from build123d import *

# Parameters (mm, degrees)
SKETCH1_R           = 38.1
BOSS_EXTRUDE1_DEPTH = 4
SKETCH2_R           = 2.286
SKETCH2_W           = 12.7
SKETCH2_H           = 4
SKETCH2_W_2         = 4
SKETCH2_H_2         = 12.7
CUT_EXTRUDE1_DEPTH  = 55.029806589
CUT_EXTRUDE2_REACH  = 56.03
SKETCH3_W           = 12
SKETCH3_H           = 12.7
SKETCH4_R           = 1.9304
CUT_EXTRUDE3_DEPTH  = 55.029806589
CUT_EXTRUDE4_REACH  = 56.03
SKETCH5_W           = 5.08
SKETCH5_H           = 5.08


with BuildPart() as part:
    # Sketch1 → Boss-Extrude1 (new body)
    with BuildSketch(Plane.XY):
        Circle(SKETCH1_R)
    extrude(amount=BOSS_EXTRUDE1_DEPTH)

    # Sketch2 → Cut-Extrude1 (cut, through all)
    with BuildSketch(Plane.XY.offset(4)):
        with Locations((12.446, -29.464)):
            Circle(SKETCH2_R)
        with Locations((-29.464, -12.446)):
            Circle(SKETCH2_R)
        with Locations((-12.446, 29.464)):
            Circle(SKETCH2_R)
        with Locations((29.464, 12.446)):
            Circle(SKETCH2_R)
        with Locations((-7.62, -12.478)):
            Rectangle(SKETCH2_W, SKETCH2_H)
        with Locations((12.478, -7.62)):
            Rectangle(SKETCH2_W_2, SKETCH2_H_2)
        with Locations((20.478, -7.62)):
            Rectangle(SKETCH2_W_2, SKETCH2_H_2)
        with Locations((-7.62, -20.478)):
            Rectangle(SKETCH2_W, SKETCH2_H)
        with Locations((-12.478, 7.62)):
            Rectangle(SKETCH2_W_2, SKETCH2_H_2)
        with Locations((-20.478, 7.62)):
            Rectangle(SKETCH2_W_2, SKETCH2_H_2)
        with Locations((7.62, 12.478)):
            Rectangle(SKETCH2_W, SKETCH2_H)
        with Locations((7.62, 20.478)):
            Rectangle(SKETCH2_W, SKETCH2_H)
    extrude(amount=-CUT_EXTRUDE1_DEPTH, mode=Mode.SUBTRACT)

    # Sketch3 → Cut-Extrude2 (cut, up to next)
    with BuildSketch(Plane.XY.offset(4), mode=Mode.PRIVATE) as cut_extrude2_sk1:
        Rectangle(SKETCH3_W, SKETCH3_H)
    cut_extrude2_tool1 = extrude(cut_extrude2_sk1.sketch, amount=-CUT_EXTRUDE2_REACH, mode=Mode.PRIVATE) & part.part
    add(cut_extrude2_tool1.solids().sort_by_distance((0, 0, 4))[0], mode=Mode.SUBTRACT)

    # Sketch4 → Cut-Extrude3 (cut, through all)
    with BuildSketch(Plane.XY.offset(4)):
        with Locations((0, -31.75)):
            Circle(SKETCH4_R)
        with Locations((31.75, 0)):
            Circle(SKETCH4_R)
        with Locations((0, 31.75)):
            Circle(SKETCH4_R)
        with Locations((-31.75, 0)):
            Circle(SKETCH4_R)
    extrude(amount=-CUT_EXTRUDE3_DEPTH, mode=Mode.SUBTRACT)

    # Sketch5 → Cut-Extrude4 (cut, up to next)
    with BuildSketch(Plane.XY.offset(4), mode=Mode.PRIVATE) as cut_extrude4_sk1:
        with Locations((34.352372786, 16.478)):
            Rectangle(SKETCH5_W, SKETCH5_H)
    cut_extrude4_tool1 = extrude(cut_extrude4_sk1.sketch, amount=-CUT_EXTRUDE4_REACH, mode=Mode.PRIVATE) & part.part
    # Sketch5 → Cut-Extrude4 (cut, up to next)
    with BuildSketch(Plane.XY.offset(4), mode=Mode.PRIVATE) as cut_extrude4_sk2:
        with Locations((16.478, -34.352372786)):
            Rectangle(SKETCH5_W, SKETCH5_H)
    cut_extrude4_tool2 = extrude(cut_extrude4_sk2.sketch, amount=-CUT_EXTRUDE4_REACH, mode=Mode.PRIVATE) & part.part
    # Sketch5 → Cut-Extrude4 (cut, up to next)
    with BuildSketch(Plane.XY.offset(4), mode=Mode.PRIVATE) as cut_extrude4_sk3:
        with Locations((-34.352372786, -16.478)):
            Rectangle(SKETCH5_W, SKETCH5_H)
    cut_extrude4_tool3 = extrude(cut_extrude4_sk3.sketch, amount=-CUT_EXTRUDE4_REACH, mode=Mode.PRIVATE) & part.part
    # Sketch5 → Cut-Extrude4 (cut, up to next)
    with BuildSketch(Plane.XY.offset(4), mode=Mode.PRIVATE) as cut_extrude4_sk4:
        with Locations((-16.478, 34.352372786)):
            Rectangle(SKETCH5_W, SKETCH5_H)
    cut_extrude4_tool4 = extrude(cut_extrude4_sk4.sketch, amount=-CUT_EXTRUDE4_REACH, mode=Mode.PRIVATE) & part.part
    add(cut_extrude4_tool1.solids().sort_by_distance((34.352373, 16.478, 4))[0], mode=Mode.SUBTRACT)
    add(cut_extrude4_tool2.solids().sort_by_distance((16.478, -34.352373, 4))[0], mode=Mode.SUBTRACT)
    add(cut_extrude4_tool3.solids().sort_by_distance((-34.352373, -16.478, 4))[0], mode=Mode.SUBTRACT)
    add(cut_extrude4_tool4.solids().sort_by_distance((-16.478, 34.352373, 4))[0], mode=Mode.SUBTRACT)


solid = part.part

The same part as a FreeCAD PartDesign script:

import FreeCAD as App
import Part
import Sketcher
Q = App.Units.Quantity

doc = App.newDocument("Part")
body = doc.addObject("PartDesign::Body", "Body")

sketch1 = doc.addObject("Sketcher::SketchObject", "Sketch")
body.addObject(sketch1)
sketch1.AttachmentSupport = (doc.XY_Plane, [""])
sketch1.MapMode = "FlatFace"
sketch1.addGeometry(Part.Circle(App.Vector(0, 0, 0), App.Vector(0, 0, 1), 38), False)
sketch1.addConstraint(Sketcher.Constraint("Coincident", 0, 3, -1, 1))
sketch1.addConstraint(Sketcher.Constraint("Diameter", 0, Q("3 in")))
pad1 = doc.addObject("PartDesign::Pad", "Pad")
body.addObject(pad1)
pad1.Profile = sketch1
pad1.Length = 4

sketch2 = doc.addObject("Sketcher::SketchObject", "Sketch001")
body.addObject(sketch2)
sketch2.AttachmentSupport = (doc.XY_Plane, [""])
sketch2.MapMode = "FlatFace"
sketch2.AttachmentOffset = App.Placement(App.Vector(0, 0, 4), App.Rotation())
sketch2.addGeometry(Part.Circle(App.Vector(12.4, -29.5, 0), App.Vector(0, 0, 1), 2.3), False)
sketch2.addGeometry(Part.Circle(App.Vector(-29.5, -12.4, 0), App.Vector(0, 0, 1), 2.3), False)
sketch2.addGeometry(Part.Circle(App.Vector(-12.4, 29.5, 0), App.Vector(0, 0, 1), 2.3), False)
sketch2.addGeometry(Part.Circle(App.Vector(29.5, 12.4, 0), App.Vector(0, 0, 1), 2.3), False)
sketch2.addGeometry(Part.LineSegment(App.Vector(-14, -10.5, 0), App.Vector(-14, -14.5, 0)), False)
sketch2.addGeometry(Part.LineSegment(App.Vector(-14, -14.5, 0), App.Vector(-1.3, -14.5, 0)), False)
sketch2.addGeometry(Part.LineSegment(App.Vector(-1.3, -14.5, 0), App.Vector(-1.3, -10.5, 0)), False)
sketch2.addGeometry(Part.LineSegment(App.Vector(-1.3, -10.5, 0), App.Vector(-14, -10.5, 0)), False)
sketch2.addGeometry(Part.LineSegment(App.Vector(10.5, -1.3, 0), App.Vector(10.5, -14, 0)), False)
sketch2.addGeometry(Part.LineSegment(App.Vector(10.5, -14, 0), App.Vector(14.5, -14, 0)), False)
sketch2.addGeometry(Part.LineSegment(App.Vector(14.5, -14, 0), App.Vector(14.5, -1.3, 0)), False)
sketch2.addGeometry(Part.LineSegment(App.Vector(14.5, -1.3, 0), App.Vector(10.5, -1.3, 0)), False)
sketch2.addGeometry(Part.LineSegment(App.Vector(18.5, -1.3, 0), App.Vector(18.5, -14, 0)), False)
sketch2.addGeometry(Part.LineSegment(App.Vector(18.5, -14, 0), App.Vector(22.5, -14, 0)), False)
sketch2.addGeometry(Part.LineSegment(App.Vector(22.5, -14, 0), App.Vector(22.5, -1.3, 0)), False)
sketch2.addGeometry(Part.LineSegment(App.Vector(22.5, -1.3, 0), App.Vector(18.5, -1.3, 0)), False)
sketch2.addGeometry(Part.LineSegment(App.Vector(-14, -18.5, 0), App.Vector(-14, -22.5, 0)), False)
sketch2.addGeometry(Part.LineSegment(App.Vector(-14, -22.5, 0), App.Vector(-1.3, -22.5, 0)), False)
sketch2.addGeometry(Part.LineSegment(App.Vector(-1.3, -22.5, 0), App.Vector(-1.3, -18.5, 0)), False)
sketch2.addGeometry(Part.LineSegment(App.Vector(-1.3, -18.5, 0), App.Vector(-14, -18.5, 0)), False)
sketch2.addGeometry(Part.LineSegment(App.Vector(-14.5, 14, 0), App.Vector(-14.5, 1.3, 0)), False)
sketch2.addGeometry(Part.LineSegment(App.Vector(-14.5, 1.3, 0), App.Vector(-10.5, 1.3, 0)), False)
sketch2.addGeometry(Part.LineSegment(App.Vector(-10.5, 1.3, 0), App.Vector(-10.5, 14, 0)), False)
sketch2.addGeometry(Part.LineSegment(App.Vector(-10.5, 14, 0), App.Vector(-14.5, 14, 0)), False)
sketch2.addGeometry(Part.LineSegment(App.Vector(-22.5, 14, 0), App.Vector(-22.5, 1.3, 0)), False)
sketch2.addGeometry(Part.LineSegment(App.Vector(-22.5, 1.3, 0), App.Vector(-18.5, 1.3, 0)), False)
sketch2.addGeometry(Part.LineSegment(App.Vector(-18.5, 1.3, 0), App.Vector(-18.5, 14, 0)), False)
sketch2.addGeometry(Part.LineSegment(App.Vector(-18.5, 14, 0), App.Vector(-22.5, 14, 0)), False)
sketch2.addGeometry(Part.LineSegment(App.Vector(1.3, 14.5, 0), App.Vector(1.3, 10.5, 0)), False)
sketch2.addGeometry(Part.LineSegment(App.Vector(1.3, 10.5, 0), App.Vector(14, 10.5, 0)), False)
sketch2.addGeometry(Part.LineSegment(App.Vector(14, 10.5, 0), App.Vector(14, 14.5, 0)), False)
sketch2.addGeometry(Part.LineSegment(App.Vector(14, 14.5, 0), App.Vector(1.3, 14.5, 0)), False)
sketch2.addGeometry(Part.LineSegment(App.Vector(1.3, 22.5, 0), App.Vector(1.3, 18.5, 0)), False)
sketch2.addGeometry(Part.LineSegment(App.Vector(1.3, 18.5, 0), App.Vector(14, 18.5, 0)), False)
sketch2.addGeometry(Part.LineSegment(App.Vector(14, 18.5, 0), App.Vector(14, 22.5, 0)), False)
sketch2.addGeometry(Part.LineSegment(App.Vector(14, 22.5, 0), App.Vector(1.3, 22.5, 0)), False)
sketch2.addConstraint(Sketcher.Constraint("Coincident", 4, 2, 5, 1))
sketch2.addConstraint(Sketcher.Constraint("Coincident", 5, 2, 6, 1))
sketch2.addConstraint(Sketcher.Constraint("Coincident", 6, 2, 7, 1))
sketch2.addConstraint(Sketcher.Constraint("Coincident", 7, 2, 4, 1))
sketch2.addConstraint(Sketcher.Constraint("Coincident", 8, 2, 9, 1))
sketch2.addConstraint(Sketcher.Constraint("Coincident", 9, 2, 10, 1))
sketch2.addConstraint(Sketcher.Constraint("Coincident", 10, 2, 11, 1))
sketch2.addConstraint(Sketcher.Constraint("Coincident", 11, 2, 8, 1))
sketch2.addConstraint(Sketcher.Constraint("Coincident", 12, 2, 13, 1))
sketch2.addConstraint(Sketcher.Constraint("Coincident", 13, 2, 14, 1))
sketch2.addConstraint(Sketcher.Constraint("Coincident", 14, 2, 15, 1))
sketch2.addConstraint(Sketcher.Constraint("Coincident", 15, 2, 12, 1))
sketch2.addConstraint(Sketcher.Constraint("Coincident", 16, 2, 17, 1))
sketch2.addConstraint(Sketcher.Constraint("Coincident", 17, 2, 18, 1))
sketch2.addConstraint(Sketcher.Constraint("Coincident", 18, 2, 19, 1))
sketch2.addConstraint(Sketcher.Constraint("Coincident", 19, 2, 16, 1))
sketch2.addConstraint(Sketcher.Constraint("Coincident", 20, 2, 21, 1))
sketch2.addConstraint(Sketcher.Constraint("Coincident", 21, 2, 22, 1))
sketch2.addConstraint(Sketcher.Constraint("Coincident", 22, 2, 23, 1))
sketch2.addConstraint(Sketcher.Constraint("Coincident", 23, 2, 20, 1))
sketch2.addConstraint(Sketcher.Constraint("Coincident", 24, 2, 25, 1))
sketch2.addConstraint(Sketcher.Constraint("Coincident", 25, 2, 26, 1))
sketch2.addConstraint(Sketcher.Constraint("Coincident", 26, 2, 27, 1))
sketch2.addConstraint(Sketcher.Constraint("Coincident", 27, 2, 24, 1))
sketch2.addConstraint(Sketcher.Constraint("Coincident", 28, 2, 29, 1))
sketch2.addConstraint(Sketcher.Constraint("Coincident", 29, 2, 30, 1))
sketch2.addConstraint(Sketcher.Constraint("Coincident", 30, 2, 31, 1))
sketch2.addConstraint(Sketcher.Constraint("Coincident", 31, 2, 28, 1))
sketch2.addConstraint(Sketcher.Constraint("Coincident", 32, 2, 33, 1))
sketch2.addConstraint(Sketcher.Constraint("Coincident", 33, 2, 34, 1))
sketch2.addConstraint(Sketcher.Constraint("Coincident", 34, 2, 35, 1))
sketch2.addConstraint(Sketcher.Constraint("Coincident", 35, 2, 32, 1))
sketch2.addConstraint(Sketcher.Constraint("Vertical", 4))
sketch2.addConstraint(Sketcher.Constraint("Horizontal", 5))
sketch2.addConstraint(Sketcher.Constraint("Vertical", 6))
sketch2.addConstraint(Sketcher.Constraint("Horizontal", 7))
sketch2.addConstraint(Sketcher.Constraint("Vertical", 8))
sketch2.addConstraint(Sketcher.Constraint("Horizontal", 9))
sketch2.addConstraint(Sketcher.Constraint("Vertical", 10))
sketch2.addConstraint(Sketcher.Constraint("Horizontal", 11))
sketch2.addConstraint(Sketcher.Constraint("Vertical", 12))
sketch2.addConstraint(Sketcher.Constraint("Horizontal", 13))
sketch2.addConstraint(Sketcher.Constraint("Vertical", 14))
sketch2.addConstraint(Sketcher.Constraint("Horizontal", 15))
sketch2.addConstraint(Sketcher.Constraint("Vertical", 16))
sketch2.addConstraint(Sketcher.Constraint("Horizontal", 17))
sketch2.addConstraint(Sketcher.Constraint("Vertical", 18))
sketch2.addConstraint(Sketcher.Constraint("Horizontal", 19))
sketch2.addConstraint(Sketcher.Constraint("Vertical", 20))
sketch2.addConstraint(Sketcher.Constraint("Horizontal", 21))
sketch2.addConstraint(Sketcher.Constraint("Vertical", 22))
sketch2.addConstraint(Sketcher.Constraint("Horizontal", 23))
sketch2.addConstraint(Sketcher.Constraint("Vertical", 24))
sketch2.addConstraint(Sketcher.Constraint("Horizontal", 25))
sketch2.addConstraint(Sketcher.Constraint("Vertical", 26))
sketch2.addConstraint(Sketcher.Constraint("Horizontal", 27))
sketch2.addConstraint(Sketcher.Constraint("Vertical", 28))
sketch2.addConstraint(Sketcher.Constraint("Horizontal", 29))
sketch2.addConstraint(Sketcher.Constraint("Vertical", 30))
sketch2.addConstraint(Sketcher.Constraint("Horizontal", 31))
sketch2.addConstraint(Sketcher.Constraint("Vertical", 32))
sketch2.addConstraint(Sketcher.Constraint("Horizontal", 33))
sketch2.addConstraint(Sketcher.Constraint("Vertical", 34))
sketch2.addConstraint(Sketcher.Constraint("Horizontal", 35))
sketch2.addConstraint(Sketcher.Constraint("Equal", 0, 1))
sketch2.addConstraint(Sketcher.Constraint("Equal", 1, 2))
sketch2.addConstraint(Sketcher.Constraint("Equal", 2, 3))
sketch2.addConstraint(Sketcher.Constraint("Symmetric", 0, 3, 2, 3, -1, 1))
sketch2.addConstraint(Sketcher.Constraint("Symmetric", 1, 3, 3, 3, -1, 1))
sketch2.addConstraint(Sketcher.Constraint("Symmetric", 10, 2, 20, 2, -1, 1))
sketch2.addConstraint(Sketcher.Constraint("Symmetric", 8, 2, 22, 2, -1, 1))
sketch2.addConstraint(Sketcher.Constraint("Symmetric", 14, 2, 24, 2, -1, 1))
sketch2.addConstraint(Sketcher.Constraint("Symmetric", 12, 2, 26, 2, -1, 1))
sketch2.addConstraint(Sketcher.Constraint("Symmetric", 6, 2, 28, 2, -1, 1))
sketch2.addConstraint(Sketcher.Constraint("Symmetric", 4, 2, 30, 2, -1, 1))
sketch2.addConstraint(Sketcher.Constraint("Symmetric", 18, 2, 32, 2, -1, 1))
sketch2.addConstraint(Sketcher.Constraint("Symmetric", 16, 2, 34, 2, -1, 1))
sketch2.addConstraint(Sketcher.Constraint("Horizontal", 9, 2, 12, 2))
sketch2.addConstraint(Sketcher.Constraint("Horizontal", 11, 2, 14, 2))
sketch2.addConstraint(Sketcher.Constraint("Vertical", 7, 2, 16, 2))
sketch2.addConstraint(Sketcher.Constraint("Vertical", 6, 2, 17, 2))
sketch2.addConstraint(Sketcher.Constraint("Equal", 11, 13))
sketch2.addConstraint(Sketcher.Constraint("Equal", 27, 4))
sketch2.addConstraint(Sketcher.Constraint("Equal", 35, 8))
sketch2.addConstraint(Sketcher.Constraint("Equal", 6, 16))
sketch2.addConstraint(Sketcher.Constraint("Diameter", 0, Q("0.18 in")))
sketch2.addConstraint(Sketcher.Constraint("DistanceX", 5, 1, 5, 2, Q("0.5 in")))
sketch2.addConstraint(Sketcher.Constraint("DistanceY", 11, 2, 22, 2, Q("0.6 in")))
sketch2.addConstraint(Sketcher.Constraint("DistanceX", -1, 1, 0, 3, Q("0.49 in")))
sketch2.addConstraint(Sketcher.Constraint("DistanceY", 0, 3, -1, 1, Q("1.16 in")))
sketch2.addConstraint(Sketcher.Constraint("DistanceX", 1, 3, -1, 1, Q("1.16 in")))
sketch2.addConstraint(Sketcher.Constraint("DistanceY", 1, 3, -1, 1, Q("0.49 in")))
sketch2.addConstraint(Sketcher.Constraint("DistanceX", 4, 2, -1, 1, Q("0.55 in")))
sketch2.addConstraint(Sketcher.Constraint("DistanceY", 4, 2, -1, 1, Q("0.57 in")))
sketch2.addConstraint(Sketcher.Constraint("DistanceX", -1, 1, 9, 2, Q("0.57 in")))
sketch2.addConstraint(Sketcher.Constraint("DistanceX", 9, 1, 9, 2, 4.0))
sketch2.addConstraint(Sketcher.Constraint("DistanceX", -1, 1, 12, 2, 18.478))
sketch2.addConstraint(Sketcher.Constraint("DistanceY", 16, 2, -1, 1, 22.478))
pocket1 = doc.addObject("PartDesign::Pocket", "Pocket")
body.addObject(pocket1)
pocket1.Profile = sketch2
pocket1.Type = "ThroughAll"

sketch3 = doc.addObject("Sketcher::SketchObject", "Sketch002")
body.addObject(sketch3)
sketch3.AttachmentSupport = (doc.XY_Plane, [""])
sketch3.MapMode = "FlatFace"
sketch3.AttachmentOffset = App.Placement(App.Vector(0, 0, 4), App.Rotation())
sketch3.addGeometry(Part.LineSegment(App.Vector(-6, 6, 0), App.Vector(-6, -6, 0)), False)
sketch3.addGeometry(Part.LineSegment(App.Vector(-6, -6, 0), App.Vector(6, -6, 0)), False)
sketch3.addGeometry(Part.LineSegment(App.Vector(6, -6, 0), App.Vector(6, 6, 0)), False)
sketch3.addGeometry(Part.LineSegment(App.Vector(6, 6, 0), App.Vector(-6, 6, 0)), False)
sketch3.addConstraint(Sketcher.Constraint("Coincident", 0, 2, 1, 1))
sketch3.addConstraint(Sketcher.Constraint("Coincident", 1, 2, 2, 1))
sketch3.addConstraint(Sketcher.Constraint("Coincident", 2, 2, 3, 1))
sketch3.addConstraint(Sketcher.Constraint("Coincident", 3, 2, 0, 1))
sketch3.addConstraint(Sketcher.Constraint("Vertical", 0))
sketch3.addConstraint(Sketcher.Constraint("Horizontal", 1))
sketch3.addConstraint(Sketcher.Constraint("Vertical", 2))
sketch3.addConstraint(Sketcher.Constraint("Horizontal", 3))
sketch3.addConstraint(Sketcher.Constraint("Symmetric", 0, 2, 2, 2, -1, 1))
sketch3.addConstraint(Sketcher.Constraint("DistanceY", 0, 2, 0, 1, Q("0.5 in")))
sketch3.addConstraint(Sketcher.Constraint("DistanceX", 1, 1, 1, 2, 12.0))
pocket2 = doc.addObject("PartDesign::Pocket", "Pocket001")
body.addObject(pocket2)
pocket2.Profile = sketch3
pocket2.Type = "UpToFirst"

sketch4 = doc.addObject("Sketcher::SketchObject", "Sketch003")
body.addObject(sketch4)
sketch4.AttachmentSupport = (doc.XY_Plane, [""])
sketch4.MapMode = "FlatFace"
sketch4.AttachmentOffset = App.Placement(App.Vector(0, 0, 4), App.Rotation())
sketch4.addGeometry(Part.Circle(App.Vector(0, -31.8, 0), App.Vector(0, 0, 1), 1.9), False)
sketch4.addGeometry(Part.Circle(App.Vector(31.8, 0, 0), App.Vector(0, 0, 1), 1.9), False)
sketch4.addGeometry(Part.Circle(App.Vector(0, 31.8, 0), App.Vector(0, 0, 1), 1.9), False)
sketch4.addGeometry(Part.Circle(App.Vector(-31.8, 0, 0), App.Vector(0, 0, 1), 1.9), False)
sketch4.addConstraint(Sketcher.Constraint("Equal", 0, 1))
sketch4.addConstraint(Sketcher.Constraint("Equal", 1, 2))
sketch4.addConstraint(Sketcher.Constraint("Equal", 2, 3))
sketch4.addConstraint(Sketcher.Constraint("Symmetric", 0, 3, 2, 3, -1, 1))
sketch4.addConstraint(Sketcher.Constraint("Symmetric", 1, 3, 3, 3, -1, 1))
sketch4.addConstraint(Sketcher.Constraint("PointOnObject", 0, 3, -2))
sketch4.addConstraint(Sketcher.Constraint("PointOnObject", 1, 3, -1))
sketch4.addConstraint(Sketcher.Constraint("Diameter", 0, Q("0.152 in")))
sketch4.addConstraint(Sketcher.Constraint("DistanceY", 0, 3, 2, 3, Q("2.5 in")))
sketch4.addConstraint(Sketcher.Constraint("DistanceX", 3, 3, 1, 3, Q("2.5 in")))
pocket3 = doc.addObject("PartDesign::Pocket", "Pocket002")
body.addObject(pocket3)
pocket3.Profile = sketch4
pocket3.Type = "ThroughAll"

sketch5 = doc.addObject("Sketcher::SketchObject", "Sketch004")
body.addObject(sketch5)
sketch5.AttachmentSupport = (doc.XY_Plane, [""])
sketch5.MapMode = "FlatFace"
sketch5.AttachmentOffset = App.Placement(App.Vector(0, 0, 4), App.Rotation())
sketch5.addGeometry(Part.LineSegment(App.Vector(32, 19, 0), App.Vector(32, 14, 0)), False)
sketch5.addGeometry(Part.LineSegment(App.Vector(32, 14, 0), App.Vector(37, 14, 0)), False)
sketch5.addGeometry(Part.LineSegment(App.Vector(37, 14, 0), App.Vector(37, 19, 0)), False)
sketch5.addGeometry(Part.LineSegment(App.Vector(37, 19, 0), App.Vector(32, 19, 0)), False)
sketch5.addConstraint(Sketcher.Constraint("Coincident", 0, 2, 1, 1))
sketch5.addConstraint(Sketcher.Constraint("Coincident", 1, 2, 2, 1))
sketch5.addConstraint(Sketcher.Constraint("Coincident", 2, 2, 3, 1))
sketch5.addConstraint(Sketcher.Constraint("Coincident", 3, 2, 0, 1))
sketch5.addConstraint(Sketcher.Constraint("Vertical", 0))
sketch5.addConstraint(Sketcher.Constraint("Horizontal", 1))
sketch5.addConstraint(Sketcher.Constraint("Vertical", 2))
sketch5.addConstraint(Sketcher.Constraint("Horizontal", 3))
sketch5.addConstraint(Sketcher.Constraint("Equal", 3, 0))
sketch5.addConstraint(Sketcher.Constraint("DistanceX", 1, 1, 1, 2, Q("0.2 in")))
sketch5.addConstraint(Sketcher.Constraint("DistanceY", -1, 1, 0, 2, 13.938))
sketch5.addConstraint(Sketcher.Constraint("DistanceX", -1, 1, 0, 2, 31.812373))
pocket4 = doc.addObject("PartDesign::Pocket", "Pocket003")
body.addObject(pocket4)
pocket4.Profile = sketch5
pocket4.Length = 4

sketch6 = doc.addObject("Sketcher::SketchObject", "Sketch005")
body.addObject(sketch6)
sketch6.AttachmentSupport = (doc.XY_Plane, [""])
sketch6.MapMode = "FlatFace"
sketch6.AttachmentOffset = App.Placement(App.Vector(0, 0, 4), App.Rotation())
sketch6.addGeometry(Part.LineSegment(App.Vector(14, -32, 0), App.Vector(14, -37, 0)), False)
sketch6.addGeometry(Part.LineSegment(App.Vector(14, -37, 0), App.Vector(19, -37, 0)), False)
sketch6.addGeometry(Part.LineSegment(App.Vector(19, -37, 0), App.Vector(19, -32, 0)), False)
sketch6.addGeometry(Part.LineSegment(App.Vector(19, -32, 0), App.Vector(14, -32, 0)), False)
sketch6.addConstraint(Sketcher.Constraint("Coincident", 0, 2, 1, 1))
sketch6.addConstraint(Sketcher.Constraint("Coincident", 1, 2, 2, 1))
sketch6.addConstraint(Sketcher.Constraint("Coincident", 2, 2, 3, 1))
sketch6.addConstraint(Sketcher.Constraint("Coincident", 3, 2, 0, 1))
sketch6.addConstraint(Sketcher.Constraint("Vertical", 0))
sketch6.addConstraint(Sketcher.Constraint("Horizontal", 1))
sketch6.addConstraint(Sketcher.Constraint("Vertical", 2))
sketch6.addConstraint(Sketcher.Constraint("Horizontal", 3))
sketch6.addConstraint(Sketcher.Constraint("Equal", 3, 0))
sketch6.addConstraint(Sketcher.Constraint("DistanceX", 1, 1, 1, 2, Q("0.2 in")))
sketch6.addConstraint(Sketcher.Constraint("DistanceX", -1, 1, 0, 2, 13.938))
sketch6.addConstraint(Sketcher.Constraint("DistanceY", 0, 2, -1, 1, 36.892373))
pocket5 = doc.addObject("PartDesign::Pocket", "Pocket004")
body.addObject(pocket5)
pocket5.Profile = sketch6
pocket5.Length = 4

sketch7 = doc.addObject("Sketcher::SketchObject", "Sketch006")
body.addObject(sketch7)
sketch7.AttachmentSupport = (doc.XY_Plane, [""])
sketch7.MapMode = "FlatFace"
sketch7.AttachmentOffset = App.Placement(App.Vector(0, 0, 4), App.Rotation())
sketch7.addGeometry(Part.LineSegment(App.Vector(-37, -14, 0), App.Vector(-37, -19, 0)), False)
sketch7.addGeometry(Part.LineSegment(App.Vector(-37, -19, 0), App.Vector(-32, -19, 0)), False)
sketch7.addGeometry(Part.LineSegment(App.Vector(-32, -19, 0), App.Vector(-32, -14, 0)), False)
sketch7.addGeometry(Part.LineSegment(App.Vector(-32, -14, 0), App.Vector(-37, -14, 0)), False)
sketch7.addConstraint(Sketcher.Constraint("Coincident", 0, 2, 1, 1))
sketch7.addConstraint(Sketcher.Constraint("Coincident", 1, 2, 2, 1))
sketch7.addConstraint(Sketcher.Constraint("Coincident", 2, 2, 3, 1))
sketch7.addConstraint(Sketcher.Constraint("Coincident", 3, 2, 0, 1))
sketch7.addConstraint(Sketcher.Constraint("Vertical", 0))
sketch7.addConstraint(Sketcher.Constraint("Horizontal", 1))
sketch7.addConstraint(Sketcher.Constraint("Vertical", 2))
sketch7.addConstraint(Sketcher.Constraint("Horizontal", 3))
sketch7.addConstraint(Sketcher.Constraint("Equal", 3, 0))
sketch7.addConstraint(Sketcher.Constraint("DistanceX", 1, 1, 1, 2, Q("0.2 in")))
sketch7.addConstraint(Sketcher.Constraint("DistanceY", 0, 2, -1, 1, 19.018))
sketch7.addConstraint(Sketcher.Constraint("DistanceX", 0, 2, -1, 1, 36.892373))
pocket6 = doc.addObject("PartDesign::Pocket", "Pocket005")
body.addObject(pocket6)
pocket6.Profile = sketch7
pocket6.Length = 4

sketch8 = doc.addObject("Sketcher::SketchObject", "Sketch007")
body.addObject(sketch8)
sketch8.AttachmentSupport = (doc.XY_Plane, [""])
sketch8.MapMode = "FlatFace"
sketch8.AttachmentOffset = App.Placement(App.Vector(0, 0, 4), App.Rotation())
sketch8.addGeometry(Part.LineSegment(App.Vector(-19, 37, 0), App.Vector(-19, 32, 0)), False)
sketch8.addGeometry(Part.LineSegment(App.Vector(-19, 32, 0), App.Vector(-14, 32, 0)), False)
sketch8.addGeometry(Part.LineSegment(App.Vector(-14, 32, 0), App.Vector(-14, 37, 0)), False)
sketch8.addGeometry(Part.LineSegment(App.Vector(-14, 37, 0), App.Vector(-19, 37, 0)), False)
sketch8.addConstraint(Sketcher.Constraint("Coincident", 0, 2, 1, 1))
sketch8.addConstraint(Sketcher.Constraint("Coincident", 1, 2, 2, 1))
sketch8.addConstraint(Sketcher.Constraint("Coincident", 2, 2, 3, 1))
sketch8.addConstraint(Sketcher.Constraint("Coincident", 3, 2, 0, 1))
sketch8.addConstraint(Sketcher.Constraint("Vertical", 0))
sketch8.addConstraint(Sketcher.Constraint("Horizontal", 1))
sketch8.addConstraint(Sketcher.Constraint("Vertical", 2))
sketch8.addConstraint(Sketcher.Constraint("Horizontal", 3))
sketch8.addConstraint(Sketcher.Constraint("Equal", 3, 0))
sketch8.addConstraint(Sketcher.Constraint("DistanceX", 1, 1, 1, 2, Q("0.2 in")))
sketch8.addConstraint(Sketcher.Constraint("DistanceX", 0, 2, -1, 1, 19.018))
sketch8.addConstraint(Sketcher.Constraint("DistanceY", -1, 1, 0, 2, 31.812373))
pocket7 = doc.addObject("PartDesign::Pocket", "Pocket006")
body.addObject(pocket7)
pocket7.Profile = sketch8
pocket7.Length = 4

doc.recompute()
